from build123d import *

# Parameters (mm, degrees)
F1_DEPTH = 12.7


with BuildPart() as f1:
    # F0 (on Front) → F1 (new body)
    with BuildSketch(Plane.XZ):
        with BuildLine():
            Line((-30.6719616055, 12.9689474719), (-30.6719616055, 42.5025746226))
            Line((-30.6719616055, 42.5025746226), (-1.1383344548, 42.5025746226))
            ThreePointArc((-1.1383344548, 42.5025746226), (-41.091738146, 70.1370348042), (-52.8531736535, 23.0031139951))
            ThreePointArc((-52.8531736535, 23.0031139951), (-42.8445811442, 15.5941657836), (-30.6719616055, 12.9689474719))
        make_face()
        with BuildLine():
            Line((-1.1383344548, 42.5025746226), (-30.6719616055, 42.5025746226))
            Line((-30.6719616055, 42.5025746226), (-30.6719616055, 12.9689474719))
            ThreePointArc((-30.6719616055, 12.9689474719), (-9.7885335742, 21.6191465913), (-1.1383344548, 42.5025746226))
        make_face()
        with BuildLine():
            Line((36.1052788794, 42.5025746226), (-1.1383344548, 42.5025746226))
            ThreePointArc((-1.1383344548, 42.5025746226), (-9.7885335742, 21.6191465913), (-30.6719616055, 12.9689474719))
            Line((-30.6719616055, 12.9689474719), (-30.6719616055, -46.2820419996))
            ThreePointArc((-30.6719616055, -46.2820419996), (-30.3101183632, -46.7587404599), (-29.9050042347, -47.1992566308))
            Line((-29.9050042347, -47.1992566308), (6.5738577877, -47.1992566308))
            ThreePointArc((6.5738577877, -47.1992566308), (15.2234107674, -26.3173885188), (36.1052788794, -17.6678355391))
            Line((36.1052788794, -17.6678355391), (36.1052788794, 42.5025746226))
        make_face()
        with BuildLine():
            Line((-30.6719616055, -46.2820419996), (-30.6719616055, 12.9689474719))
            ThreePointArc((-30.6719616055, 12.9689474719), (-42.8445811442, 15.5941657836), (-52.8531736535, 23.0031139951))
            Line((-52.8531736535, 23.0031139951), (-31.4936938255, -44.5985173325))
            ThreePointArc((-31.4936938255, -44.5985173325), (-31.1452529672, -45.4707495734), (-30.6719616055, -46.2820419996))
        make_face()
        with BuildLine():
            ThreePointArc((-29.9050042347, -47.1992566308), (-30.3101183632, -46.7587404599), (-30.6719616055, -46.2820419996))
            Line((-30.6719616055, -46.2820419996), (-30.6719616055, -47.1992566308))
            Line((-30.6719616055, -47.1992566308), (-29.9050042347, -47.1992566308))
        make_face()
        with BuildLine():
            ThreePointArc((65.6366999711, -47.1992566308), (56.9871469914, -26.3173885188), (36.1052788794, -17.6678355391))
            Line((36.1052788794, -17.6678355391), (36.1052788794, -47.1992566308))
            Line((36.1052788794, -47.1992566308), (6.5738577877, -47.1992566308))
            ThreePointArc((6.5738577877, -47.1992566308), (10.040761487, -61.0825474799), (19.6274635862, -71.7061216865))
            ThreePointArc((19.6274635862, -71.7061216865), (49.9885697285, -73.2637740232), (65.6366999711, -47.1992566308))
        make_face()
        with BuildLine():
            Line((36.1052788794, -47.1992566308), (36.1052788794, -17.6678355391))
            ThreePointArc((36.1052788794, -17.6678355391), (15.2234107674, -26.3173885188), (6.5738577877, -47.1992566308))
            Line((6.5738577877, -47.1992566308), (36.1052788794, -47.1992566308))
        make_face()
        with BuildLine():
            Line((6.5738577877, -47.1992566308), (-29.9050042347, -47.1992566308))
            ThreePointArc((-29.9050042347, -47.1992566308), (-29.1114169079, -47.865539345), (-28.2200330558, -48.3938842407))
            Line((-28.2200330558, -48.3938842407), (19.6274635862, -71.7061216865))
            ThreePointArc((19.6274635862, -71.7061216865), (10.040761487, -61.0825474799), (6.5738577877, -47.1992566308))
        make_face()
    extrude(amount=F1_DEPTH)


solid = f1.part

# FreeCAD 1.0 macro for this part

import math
import FreeCAD as App
import Part
import Sketcher

V = App.Vector
Q = App.Units.Quantity

doc = App.newDocument("Part")
body = doc.addObject("PartDesign::Body", "Body")

# Sketch on XZ plane
sketch1 = body.newObject("Sketcher::SketchObject", "Sketch")
sketch1.AttachmentSupport = (doc.getObject("XZ_Plane"), [""])
sketch1.MapMode = "FlatFace"
sketch1.addGeometry([
    Part.ArcOfCircle(Part.Circle(V(-30.671962, 42.502575, 0), V(0, 0, 1), 29.533627), math.radians(0), math.radians(221.318641)),  # 0
    Part.LineSegment(V(-52.853174, 23.003114, 0), V(-31.493694, -44.598517, 0)),  # 1
    Part.ArcOfCircle(Part.Circle(V(-25.438742, -42.685389, 0), V(0, 0, 1), 6.35), math.radians(-162.465495), math.radians(-145.500288)),  # 2
    Part.LineSegment(V(-30.671962, -46.282042, 0), V(-30.671962, -47.199257, 0)),  # 3
    Part.LineSegment(V(-30.671962, -47.199257, 0), V(-29.905004, -47.199257, 0)),  # 4
    Part.ArcOfCircle(Part.Circle(V(-25.438742, -42.685389, 0), V(0, 0, 1), 6.35), math.radians(-134.696264), math.radians(-115.976251)),  # 5
    Part.LineSegment(V(-28.220033, -48.393884, 0), V(19.627464, -71.706122, 0)),  # 6
    Part.ArcOfCircle(Part.Circle(V(36.105279, -47.199257, 0), V(0, 0, 1), 29.531421), math.radians(-123.915919), math.radians(0)),  # 7
    Part.ArcOfCircle(Part.Circle(V(36.105279, -47.199257, 0), V(0, 0, 1), 29.531421), math.radians(0), math.radians(90)),  # 8
    Part.LineSegment(V(36.105279, -17.667836, 0), V(36.105279, 42.502575, 0)),  # 9
    Part.LineSegment(V(36.105279, 42.502575, 0), V(-1.138334, 42.502575, 0)),  # 10
], False)
sketch1.addConstraint([
    Sketcher.Constraint("Coincident", 0, 2, 1, 1),
    Sketcher.Constraint("Tangent", 1, 2, 2, 1),
    Sketcher.Constraint("Coincident", 2, 2, 3, 1),
    Sketcher.Constraint("Coincident", 3, 2, 4, 1),
    Sketcher.Constraint("Coincident", 4, 2, 5, 1),
    Sketcher.Constraint("Tangent", 5, 2, 6, 1),
    Sketcher.Constraint("Coincident", 6, 2, 7, 1),
    Sketcher.Constraint("Tangent", 7, 2, 8, 1),
    Sketcher.Constraint("Coincident", 8, 2, 9, 1),
    Sketcher.Constraint("Coincident", 9, 2, 10, 1),
    Sketcher.Constraint("Coincident", 10, 2, 0, 1),
    Sketcher.Constraint("Vertical", 3),
    Sketcher.Constraint("Horizontal", 4),
    Sketcher.Constraint("Vertical", 9),
    Sketcher.Constraint("Horizontal", 10),
    Sketcher.Constraint("Coincident", 5, 3, 2, 3),
    Sketcher.Constraint("Equal", 2, 5),
    Sketcher.Constraint("Equal", 7, 8),
    Sketcher.Constraint("Horizontal", 8, 3, 3, 2),
    Sketcher.Constraint("Horizontal", 4, 2, 7, 2),
    Sketcher.Constraint("Horizontal", 0, 3, 9, 2),
    Sketcher.Constraint("Vertical", 0, 3, 2, 2),
    Sketcher.Constraint("Vertical", 7, 3, 8, 2),
    Sketcher.Constraint("Radius", 2, Q("0.25 in")),
    Sketcher.Constraint("Radius", 7, Q("29.531421 mm")),
    Sketcher.Constraint("Radius", 0, Q("29.533627 mm")),
    Sketcher.Constraint("DistanceY", 9, 1, 9, 2, Q("60.17041 mm")),
    Sketcher.Constraint("DistanceX", -1, 1, 7, 2, Q("65.6367 mm")),
    Sketcher.Constraint("Distance", 6, Q("53.224462 mm")),
    Sketcher.Constraint("DistanceX", 4, 1, 4, 2, Q("0.766957 mm")),
    Sketcher.Constraint("DistanceX", 10, 2, 10, 1, Q("37.243613 mm")),
    Sketcher.Constraint("DistanceY", 3, 2, 3, 1, Q("0.917215 mm")),
    Sketcher.Constraint("DistanceY", 2, 3, -1, 1, Q("42.685389 mm")),
    Sketcher.Constraint("DistanceY", 0, 2, 0, 3, Q("19.499461 mm")),
])
pad1 = body.newObject("PartDesign::Pad", "Pad")
pad1.Profile = sketch1
pad1.Length = Q("0.5 in")

doc.recompute()
